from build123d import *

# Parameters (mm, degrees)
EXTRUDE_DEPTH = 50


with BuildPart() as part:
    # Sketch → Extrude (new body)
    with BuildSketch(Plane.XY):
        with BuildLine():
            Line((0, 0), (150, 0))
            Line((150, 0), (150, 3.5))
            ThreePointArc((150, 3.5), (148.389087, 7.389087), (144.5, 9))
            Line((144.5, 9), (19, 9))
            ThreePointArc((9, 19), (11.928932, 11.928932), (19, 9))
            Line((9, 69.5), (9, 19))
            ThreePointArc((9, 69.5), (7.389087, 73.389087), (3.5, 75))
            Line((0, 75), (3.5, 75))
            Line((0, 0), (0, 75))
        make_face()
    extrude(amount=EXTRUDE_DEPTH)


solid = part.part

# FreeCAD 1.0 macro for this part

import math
import FreeCAD as App
import Part
import Sketcher
from FreeCAD import Vector
Q = App.Units.Quantity

doc = App.newDocument("Part")
body = doc.addObject("PartDesign::Body", "Body")

# Sketch on XY plane
sketch1 = body.newObject("Sketcher::SketchObject", "Sketch")
sketch1.AttachmentSupport = (doc.getObject("XY_Plane"), [""])
sketch1.MapMode = "FlatFace"
sketch1.addGeometry([
    Part.LineSegment(Vector(0, 0, 0), Vector(150, 0, 0)),  # 0
    Part.LineSegment(Vector(150, 0, 0), Vector(150, 3.5, 0)),  # 1
    Part.ArcOfCircle(Part.Circle(Vector(144.499999, 3.499999, 0), Vector(0, 0, 1), 5.500001), math.radians(0.000011), math.radians(89.999989)),  # 2
    Part.LineSegment(Vector(144.5, 9, 0), Vector(19, 9, 0)),  # 3
    Part.ArcOfCircle(Part.Circle(Vector(18.999999, 18.999999, 0), Vector(0, 0, 1), 9.999999), math.radians(179.999996), math.radians(270.000004)),  # 4
    Part.LineSegment(Vector(9, 19, 0), Vector(9, 69.5, 0)),  # 5
    Part.ArcOfCircle(Part.Circle(Vector(3.499999, 69.499999, 0), Vector(0, 0, 1), 5.500001), math.radians(0.000011), math.radians(89.999989)),  # 6
    Part.LineSegment(Vector(3.5, 75, 0), Vector(0, 75, 0)),  # 7
    Part.LineSegment(Vector(0, 75, 0), Vector(0, 0, 0)),  # 8
], False)
sketch1.addConstraint([
    Sketcher.Constraint("Coincident", 0, 2, 1, 1),
    Sketcher.Constraint("Tangent", 1, 2, 2, 1),
    Sketcher.Constraint("Tangent", 2, 2, 3, 1),
    Sketcher.Constraint("Tangent", 3, 2, 4, 2),
    Sketcher.Constraint("Tangent", 4, 1, 5, 1),
    Sketcher.Constraint("Tangent", 5, 2, 6, 1),
    Sketcher.Constraint("Tangent", 6, 2, 7, 1),
    Sketcher.Constraint("Coincident", 7, 2, 8, 1),
    Sketcher.Constraint("Coincident", 8, 2, 0, 1),
    Sketcher.Constraint("Horizontal", 0),
    Sketcher.Constraint("Vertical", 1),
    Sketcher.Constraint("Horizontal", 3),
    Sketcher.Constraint("Vertical", 5),
    Sketcher.Constraint("Horizontal", 7),
    Sketcher.Constraint("Vertical", 8),
    Sketcher.Constraint("Coincident", 8, 2, -1, 1),
    Sketcher.Constraint("Equal", 2, 6),
    Sketcher.Constraint("Equal", 7, 1),
    Sketcher.Constraint("Radius", 4, Q("9.999999 mm")),
    Sketcher.Constraint("Radius", 2, Q("5.500001 mm")),
    Sketcher.Constraint("DistanceX", 0, 1, 0, 2, Q("150 mm")),
    Sketcher.Constraint("DistanceY", 8, 2, 8, 1, Q("75 mm")),
    Sketcher.Constraint("DistanceX", 3, 2, 3, 1, Q("125.5 mm")),
])
pad1 = body.newObject("PartDesign::Pad", "Pad")
pad1.Profile = sketch1
pad1.Length = 50

doc.recompute()
